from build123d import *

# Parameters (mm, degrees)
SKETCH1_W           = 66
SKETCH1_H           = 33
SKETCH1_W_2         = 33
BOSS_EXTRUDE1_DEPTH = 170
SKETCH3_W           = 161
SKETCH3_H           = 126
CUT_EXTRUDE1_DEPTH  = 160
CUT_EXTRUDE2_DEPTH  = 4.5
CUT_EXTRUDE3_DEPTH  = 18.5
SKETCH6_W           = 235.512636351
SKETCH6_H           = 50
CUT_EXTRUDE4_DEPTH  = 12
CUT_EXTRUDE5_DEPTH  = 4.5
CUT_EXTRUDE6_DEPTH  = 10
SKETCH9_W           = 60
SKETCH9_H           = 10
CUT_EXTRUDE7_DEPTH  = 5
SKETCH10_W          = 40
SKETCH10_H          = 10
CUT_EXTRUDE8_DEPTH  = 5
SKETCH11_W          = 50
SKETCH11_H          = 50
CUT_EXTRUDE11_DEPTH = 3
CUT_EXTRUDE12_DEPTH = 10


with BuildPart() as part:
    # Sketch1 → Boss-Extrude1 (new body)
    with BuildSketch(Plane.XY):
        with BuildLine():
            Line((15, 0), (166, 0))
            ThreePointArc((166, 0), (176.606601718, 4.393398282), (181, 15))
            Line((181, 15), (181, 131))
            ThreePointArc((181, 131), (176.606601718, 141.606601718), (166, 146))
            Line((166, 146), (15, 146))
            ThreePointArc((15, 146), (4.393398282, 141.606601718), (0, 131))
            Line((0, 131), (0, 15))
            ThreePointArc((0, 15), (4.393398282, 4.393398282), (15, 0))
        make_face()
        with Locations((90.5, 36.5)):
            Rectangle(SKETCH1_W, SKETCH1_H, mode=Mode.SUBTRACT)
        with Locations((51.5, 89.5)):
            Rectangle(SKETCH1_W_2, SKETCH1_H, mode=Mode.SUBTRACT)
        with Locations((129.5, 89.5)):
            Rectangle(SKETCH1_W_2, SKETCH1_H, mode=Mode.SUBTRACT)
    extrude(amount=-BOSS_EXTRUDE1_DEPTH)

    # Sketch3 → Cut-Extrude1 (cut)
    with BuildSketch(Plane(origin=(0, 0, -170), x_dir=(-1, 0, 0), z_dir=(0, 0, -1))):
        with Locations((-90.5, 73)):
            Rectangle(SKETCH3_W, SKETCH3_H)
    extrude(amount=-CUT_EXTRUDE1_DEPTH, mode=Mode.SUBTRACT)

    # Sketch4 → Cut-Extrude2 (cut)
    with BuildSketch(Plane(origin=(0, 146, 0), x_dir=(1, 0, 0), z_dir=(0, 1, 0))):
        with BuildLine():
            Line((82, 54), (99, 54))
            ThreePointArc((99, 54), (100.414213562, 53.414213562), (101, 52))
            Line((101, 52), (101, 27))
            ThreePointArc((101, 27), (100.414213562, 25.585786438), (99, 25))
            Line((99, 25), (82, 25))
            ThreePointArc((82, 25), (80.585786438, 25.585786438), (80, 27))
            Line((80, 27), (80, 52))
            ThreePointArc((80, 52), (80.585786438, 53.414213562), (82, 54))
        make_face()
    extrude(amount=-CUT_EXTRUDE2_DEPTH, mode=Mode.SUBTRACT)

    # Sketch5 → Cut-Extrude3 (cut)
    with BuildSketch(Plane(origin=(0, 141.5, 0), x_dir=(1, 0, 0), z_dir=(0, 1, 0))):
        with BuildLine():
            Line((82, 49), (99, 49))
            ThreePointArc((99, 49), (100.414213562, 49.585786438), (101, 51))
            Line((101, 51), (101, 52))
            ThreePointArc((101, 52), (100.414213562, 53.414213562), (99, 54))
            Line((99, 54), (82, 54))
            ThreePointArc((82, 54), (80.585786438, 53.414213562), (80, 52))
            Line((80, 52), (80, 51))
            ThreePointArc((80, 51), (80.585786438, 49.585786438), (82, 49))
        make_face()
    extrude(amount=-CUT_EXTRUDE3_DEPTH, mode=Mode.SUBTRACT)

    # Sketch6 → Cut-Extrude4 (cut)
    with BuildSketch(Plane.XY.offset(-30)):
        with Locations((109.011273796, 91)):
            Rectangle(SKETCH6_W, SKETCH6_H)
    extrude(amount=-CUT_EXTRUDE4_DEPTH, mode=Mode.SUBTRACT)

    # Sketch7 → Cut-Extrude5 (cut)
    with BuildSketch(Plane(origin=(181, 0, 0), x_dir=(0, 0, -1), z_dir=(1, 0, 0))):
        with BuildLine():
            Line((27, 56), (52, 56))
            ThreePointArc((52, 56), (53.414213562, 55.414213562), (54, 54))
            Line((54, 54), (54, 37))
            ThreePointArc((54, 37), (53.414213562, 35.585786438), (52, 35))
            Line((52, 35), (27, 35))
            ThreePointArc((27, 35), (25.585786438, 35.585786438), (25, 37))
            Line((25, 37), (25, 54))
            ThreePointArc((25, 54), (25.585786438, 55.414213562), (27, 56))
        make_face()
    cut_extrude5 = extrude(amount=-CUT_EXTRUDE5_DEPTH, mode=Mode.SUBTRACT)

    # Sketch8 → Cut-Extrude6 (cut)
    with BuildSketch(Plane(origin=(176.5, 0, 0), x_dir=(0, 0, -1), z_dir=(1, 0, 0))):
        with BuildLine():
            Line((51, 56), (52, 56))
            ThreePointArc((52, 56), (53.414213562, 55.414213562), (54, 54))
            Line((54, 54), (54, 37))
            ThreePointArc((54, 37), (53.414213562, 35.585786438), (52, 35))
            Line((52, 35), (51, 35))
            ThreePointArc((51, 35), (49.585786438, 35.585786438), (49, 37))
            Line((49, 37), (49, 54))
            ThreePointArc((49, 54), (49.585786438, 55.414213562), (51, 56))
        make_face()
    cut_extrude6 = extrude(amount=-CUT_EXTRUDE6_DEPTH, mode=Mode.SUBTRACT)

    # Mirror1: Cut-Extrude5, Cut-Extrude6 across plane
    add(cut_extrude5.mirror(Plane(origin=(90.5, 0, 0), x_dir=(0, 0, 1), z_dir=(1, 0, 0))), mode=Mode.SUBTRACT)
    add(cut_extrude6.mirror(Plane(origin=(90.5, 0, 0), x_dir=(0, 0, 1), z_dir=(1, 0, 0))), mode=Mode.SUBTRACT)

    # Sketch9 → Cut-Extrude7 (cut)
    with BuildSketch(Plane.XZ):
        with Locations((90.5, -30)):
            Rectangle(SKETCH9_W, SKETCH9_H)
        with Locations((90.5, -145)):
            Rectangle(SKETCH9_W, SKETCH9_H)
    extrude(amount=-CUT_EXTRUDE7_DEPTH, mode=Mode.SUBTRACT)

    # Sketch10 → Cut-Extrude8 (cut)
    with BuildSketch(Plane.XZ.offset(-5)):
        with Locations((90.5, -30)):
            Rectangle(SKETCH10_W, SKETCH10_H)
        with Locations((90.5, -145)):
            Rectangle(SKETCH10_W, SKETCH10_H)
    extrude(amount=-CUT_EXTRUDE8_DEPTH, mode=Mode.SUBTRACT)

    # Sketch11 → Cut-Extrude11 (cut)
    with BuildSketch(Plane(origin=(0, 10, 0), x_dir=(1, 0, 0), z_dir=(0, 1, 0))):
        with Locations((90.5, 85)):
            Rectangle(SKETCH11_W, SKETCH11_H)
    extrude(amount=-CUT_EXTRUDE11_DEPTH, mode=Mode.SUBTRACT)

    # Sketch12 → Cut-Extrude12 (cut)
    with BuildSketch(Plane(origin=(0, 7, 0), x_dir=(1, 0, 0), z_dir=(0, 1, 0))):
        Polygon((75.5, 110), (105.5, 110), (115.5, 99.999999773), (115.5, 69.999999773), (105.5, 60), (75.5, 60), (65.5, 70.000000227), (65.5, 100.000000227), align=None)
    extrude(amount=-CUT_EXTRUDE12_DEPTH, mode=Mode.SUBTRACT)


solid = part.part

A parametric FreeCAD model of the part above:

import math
import FreeCAD as App
import Part
import Sketcher

doc = App.newDocument("Part")
body = doc.addObject("PartDesign::Body", "Body")

sketch1 = body.newObject("Sketcher::SketchObject", "Sketch")
sketch1.AttachmentSupport = (doc.getObject("XY_Plane"), [""])
sketch1.MapMode = "FlatFace"
sketch1.addGeometry([
    Part.LineSegment(App.Vector(15, 0, 0), App.Vector(166, 0, 0)),
    Part.ArcOfCircle(Part.Circle(App.Vector(166, 15, 0), App.Vector(0, 0, 1), 15), math.radians(-90), math.radians(0)),
    Part.LineSegment(App.Vector(181, 15, 0), App.Vector(181, 131, 0)),
    Part.ArcOfCircle(Part.Circle(App.Vector(166, 131, 0), App.Vector(0, 0, 1), 15), math.radians(0), math.radians(90)),
    Part.LineSegment(App.Vector(166, 146, 0), App.Vector(15, 146, 0)),
    Part.ArcOfCircle(Part.Circle(App.Vector(15, 131, 0), App.Vector(0, 0, 1), 15), math.radians(90), math.radians(180)),
    Part.LineSegment(App.Vector(0, 131, 0), App.Vector(0, 15, 0)),
    Part.ArcOfCircle(Part.Circle(App.Vector(15, 15, 0), App.Vector(0, 0, 1), 15), math.radians(180), math.radians(270)),
    Part.LineSegment(App.Vector(124, 20, 0), App.Vector(58, 20, 0)),
    Part.LineSegment(App.Vector(58, 20, 0), App.Vector(58, 53, 0)),
    Part.LineSegment(App.Vector(58, 53, 0), App.Vector(124, 53, 0)),
    Part.LineSegment(App.Vector(124, 53, 0), App.Vector(124, 20, 0)),
    Part.LineSegment(App.Vector(68, 73, 0), App.Vector(35, 73, 0)),
    Part.LineSegment(App.Vector(35, 73, 0), App.Vector(35, 106, 0)),
    Part.LineSegment(App.Vector(35, 106, 0), App.Vector(68, 106, 0)),
    Part.LineSegment(App.Vector(68, 106, 0), App.Vector(68, 73, 0)),
    Part.LineSegment(App.Vector(146, 73, 0), App.Vector(113, 73, 0)),
    Part.LineSegment(App.Vector(113, 73, 0), App.Vector(113, 106, 0)),
    Part.LineSegment(App.Vector(113, 106, 0), App.Vector(146, 106, 0)),
    Part.LineSegment(App.Vector(146, 106, 0), App.Vector(146, 73, 0)),
], False)
sketch1.addConstraint([
    Sketcher.Constraint("Tangent", 0, 2, 1, 1),
    Sketcher.Constraint("Tangent", 1, 2, 2, 1),
    Sketcher.Constraint("Tangent", 2, 2, 3, 1),
    Sketcher.Constraint("Tangent", 3, 2, 4, 1),
    Sketcher.Constraint("Tangent", 4, 2, 5, 1),
    Sketcher.Constraint("Tangent", 5, 2, 6, 1),
    Sketcher.Constraint("Tangent", 6, 2, 7, 1),
    Sketcher.Constraint("Tangent", 7, 2, 0, 1),
    Sketcher.Constraint("Coincident", 8, 2, 9, 1),
    Sketcher.Constraint("Coincident", 9, 2, 10, 1),
    Sketcher.Constraint("Coincident", 10, 2, 11, 1),
    Sketcher.Constraint("Coincident", 11, 2, 8, 1),
    Sketcher.Constraint("Coincident", 12, 2, 13, 1),
    Sketcher.Constraint("Coincident", 13, 2, 14, 1),
    Sketcher.Constraint("Coincident", 14, 2, 15, 1),
    Sketcher.Constraint("Coincident", 15, 2, 12, 1),
    Sketcher.Constraint("Coincident", 16, 2, 17, 1),
    Sketcher.Constraint("Coincident", 17, 2, 18, 1),
    Sketcher.Constraint("Coincident", 18, 2, 19, 1),
    Sketcher.Constraint("Coincident", 19, 2, 16, 1),
    Sketcher.Constraint("Horizontal", 0),
    Sketcher.Constraint("Vertical", 2),
    Sketcher.Constraint("Horizontal", 4),
    Sketcher.Constraint("Vertical", 6),
    Sketcher.Constraint("Horizontal", 8),
    Sketcher.Constraint("Vertical", 9),
    Sketcher.Constraint("Horizontal", 10),
    Sketcher.Constraint("Vertical", 11),
    Sketcher.Constraint("Horizontal", 12),
    Sketcher.Constraint("Vertical", 13),
    Sketcher.Constraint("Horizontal", 14),
    Sketcher.Constraint("Vertical", 15),
    Sketcher.Constraint("Horizontal", 16),
    Sketcher.Constraint("Vertical", 17),
    Sketcher.Constraint("Horizontal", 18),
    Sketcher.Constraint("Vertical", 19),
    Sketcher.Constraint("Equal", 1, 3),
    Sketcher.Constraint("Equal", 3, 5),
    Sketcher.Constraint("Equal", 5, 7),
    Sketcher.Constraint("PointOnObject", 0, 2, -1),
    Sketcher.Constraint("PointOnObject", 5, 2, -2),
    Sketcher.Constraint("Horizontal", 15, 2, 16, 2),
    Sketcher.Constraint("Horizontal", 14, 2, 17, 2),
    Sketcher.Constraint("Equal", 14, 16),
    Sketcher.Constraint("Equal", 18, 9),
    Sketcher.Constraint("Equal", 11, 13),
    Sketcher.Constraint("Radius", 1, 15.0),
    Sketcher.Constraint("DistanceX", 0, 1, 0, 2, 151.0),
    Sketcher.Constraint("DistanceX", 8, 2, 8, 1, 66.0),
    Sketcher.Constraint("DistanceX", 12, 2, 12, 1, 33.0),
    Sketcher.Constraint("DistanceY", 2, 1, 2, 2, 116.0),
    Sketcher.Constraint("DistanceY", -1, 1, 8, 2, 20.0),
    Sketcher.Constraint("DistanceX", -1, 1, 12, 2, 35.0),
    Sketcher.Constraint("DistanceY", -1, 1, 12, 2, 73.0),
    Sketcher.Constraint("DistanceX", -1, 1, 16, 2, 113.0),
    Sketcher.Constraint("DistanceX", -1, 1, 8, 2, 57.5),
])
pad1 = body.newObject("PartDesign::Pad", "Pad")
pad1.Profile = sketch1
pad1.Length = 170
pad1.Reversed = True

sketch2 = body.newObject("Sketcher::SketchObject", "Sketch001")
sketch2.AttachmentSupport = (doc.getObject("XY_Plane"), [""])
sketch2.MapMode = "FlatFace"
sketch2.AttachmentOffset = App.Placement(App.Vector(0, 0, -170), App.Rotation())
sketch2.addGeometry([
    Part.LineSegment(App.Vector(171, 136, 0), App.Vector(171, 10, 0)),
    Part.LineSegment(App.Vector(171, 10, 0), App.Vector(10, 10, 0)),
    Part.LineSegment(App.Vector(10, 10, 0), App.Vector(10, 136, 0)),
    Part.LineSegment(App.Vector(10, 136, 0), App.Vector(171, 136, 0)),
], False)
sketch2.addConstraint([
    Sketcher.Constraint("Coincident", 0, 2, 1, 1),
    Sketcher.Constraint("Coincident", 1, 2, 2, 1),
    Sketcher.Constraint("Coincident", 2, 2, 3, 1),
    Sketcher.Constraint("Coincident", 3, 2, 0, 1),
    Sketcher.Constraint("Vertical", 0),
    Sketcher.Constraint("Horizontal", 1),
    Sketcher.Constraint("Vertical", 2),
    Sketcher.Constraint("Horizontal", 3),
    Sketcher.Constraint("DistanceX", 1, 2, 1, 1, 161.0),
    Sketcher.Constraint("DistanceY", 0, 2, 0, 1, 126.0),
    Sketcher.Constraint("DistanceX", -1, 1, 0, 2, 171.0),
    Sketcher.Constraint("DistanceY", -1, 1, 0, 2, 10.0),
])
pocket1 = body.newObject("PartDesign::Pocket", "Pocket")
pocket1.Profile = sketch2
pocket1.Length = 160
pocket1.Reversed = True

sketch3 = body.newObject("Sketcher::SketchObject", "Sketch002")
sketch3.AttachmentSupport = (doc.getObject("XZ_Plane"), [""])
sketch3.MapMode = "FlatFace"
sketch3.AttachmentOffset = App.Placement(App.Vector(0, 0, -146), App.Rotation())
sketch3.addGeometry([
    Part.LineSegment(App.Vector(99, -54, 0), App.Vector(82, -54, 0)),
    Part.ArcOfCircle(Part.Circle(App.Vector(82, -52, 0), App.Vector(0, 0, 1), 2), math.radians(-180), math.radians(-90)),
    Part.LineSegment(App.Vector(80, -52, 0), App.Vector(80, -27, 0)),
    Part.ArcOfCircle(Part.Circle(App.Vector(82, -27, 0), App.Vector(0, 0, 1), 2), math.radians(90), math.radians(180)),
    Part.LineSegment(App.Vector(82, -25, 0), App.Vector(99, -25, 0)),
    Part.ArcOfCircle(Part.Circle(App.Vector(99, -27, 0), App.Vector(0, 0, 1), 2), math.radians(0), math.radians(90)),
    Part.LineSegment(App.Vector(101, -27, 0), App.Vector(101, -52, 0)),
    Part.ArcOfCircle(Part.Circle(App.Vector(99, -52, 0), App.Vector(0, 0, 1), 2), math.radians(-90), math.radians(0)),
], False)
sketch3.addConstraint([
    Sketcher.Constraint("Tangent", 0, 2, 1, 2),
    Sketcher.Constraint("Tangent", 1, 1, 2, 1),
    Sketcher.Constraint("Tangent", 2, 2, 3, 2),
    Sketcher.Constraint("Tangent", 3, 1, 4, 1),
    Sketcher.Constraint("Tangent", 4, 2, 5, 2),
    Sketcher.Constraint("Tangent", 5, 1, 6, 1),
    Sketcher.Constraint("Tangent", 6, 2, 7, 2),
    Sketcher.Constraint("Tangent", 7, 1, 0, 1),
    Sketcher.Constraint("Horizontal", 0),
    Sketcher.Constraint("Vertical", 2),
    Sketcher.Constraint("Horizontal", 4),
    Sketcher.Constraint("Vertical", 6),
    Sketcher.Constraint("Equal", 1, 3),
    Sketcher.Constraint("Equal", 3, 5),
    Sketcher.Constraint("Equal", 5, 7),
    Sketcher.Constraint("Radius", 1, 2.0),
    Sketcher.Constraint("DistanceX", 0, 2, 0, 1, 17.0),
    Sketcher.Constraint("DistanceY", 2, 1, 2, 2, 25.0),
    Sketcher.Constraint("DistanceX", -1, 1, 1, 3, 82.0),
    Sketcher.Constraint("DistanceY", 1, 3, -1, 1, 52.0),
])
pocket2 = body.newObject("PartDesign::Pocket", "Pocket001")
pocket2.Profile = sketch3
pocket2.Length = 4.5
pocket2.Reversed = True

sketch4 = body.newObject("Sketcher::SketchObject", "Sketch003")
sketch4.AttachmentSupport = (doc.getObject("XZ_Plane"), [""])
sketch4.MapMode = "FlatFace"
sketch4.AttachmentOffset = App.Placement(App.Vector(0, 0, -141.5), App.Rotation())
sketch4.addGeometry([
    Part.LineSegment(App.Vector(82, -49, 0), App.Vector(99, -49, 0)),
    Part.ArcOfCircle(Part.Circle(App.Vector(99, -51, 0), App.Vector(0, 0, 1), 2), math.radians(0), math.radians(90)),
    Part.LineSegment(App.Vector(101, -51, 0), App.Vector(101, -52, 0)),
    Part.ArcOfCircle(Part.Circle(App.Vector(99, -52, 0), App.Vector(0, 0, 1), 2), math.radians(-90), math.radians(0)),
    Part.LineSegment(App.Vector(99, -54, 0), App.Vector(82, -54, 0)),
    Part.ArcOfCircle(Part.Circle(App.Vector(82, -52, 0), App.Vector(0, 0, 1), 2), math.radians(-180), math.radians(-90)),
    Part.LineSegment(App.Vector(80, -52, 0), App.Vector(80, -51, 0)),
    Part.ArcOfCircle(Part.Circle(App.Vector(82, -51, 0), App.Vector(0, 0, 1), 2), math.radians(90), math.radians(180)),
], False)
sketch4.addConstraint([
    Sketcher.Constraint("Tangent", 0, 2, 1, 2),
    Sketcher.Constraint("Tangent", 1, 1, 2, 1),
    Sketcher.Constraint("Tangent", 2, 2, 3, 2),
    Sketcher.Constraint("Tangent", 3, 1, 4, 1),
    Sketcher.Constraint("Tangent", 4, 2, 5, 2),
    Sketcher.Constraint("Tangent", 5, 1, 6, 1),
    Sketcher.Constraint("Tangent", 6, 2, 7, 2),
    Sketcher.Constraint("Tangent", 7, 1, 0, 1),
    Sketcher.Constraint("Horizontal", 0),
    Sketcher.Constraint("Vertical", 2),
    Sketcher.Constraint("Horizontal", 4),
    Sketcher.Constraint("Vertical", 6),
    Sketcher.Constraint("Equal", 1, 3),
    Sketcher.Constraint("Equal", 3, 5),
    Sketcher.Constraint("Equal", 5, 7),
    Sketcher.Constraint("Radius", 1, 2.0),
    Sketcher.Constraint("DistanceX", 0, 1, 0, 2, 17.0),
    Sketcher.Constraint("DistanceY", 2, 2, 2, 1, 1.0),
    Sketcher.Constraint("DistanceX", -1, 1, 1, 3, 99.0),
    Sketcher.Constraint("DistanceY", 1, 3, -1, 1, 51.0),
])
pocket3 = body.newObject("PartDesign::Pocket", "Pocket002")
pocket3.Profile = sketch4
pocket3.Length = 18.5
pocket3.Reversed = True

sketch5 = body.newObject("Sketcher::SketchObject", "Sketch004")
sketch5.AttachmentSupport = (doc.getObject("XY_Plane"), [""])
sketch5.MapMode = "FlatFace"
sketch5.AttachmentOffset = App.Placement(App.Vector(0, 0, -30), App.Rotation())
sketch5.addGeometry([
    Part.LineSegment(App.Vector(-9, 116, 0), App.Vector(-9, 66, 0)),
    Part.LineSegment(App.Vector(-9, 66, 0), App.Vector(227, 66, 0)),
    Part.LineSegment(App.Vector(227, 66, 0), App.Vector(227, 116, 0)),
    Part.LineSegment(App.Vector(227, 116, 0), App.Vector(-9, 116, 0)),
], False)
sketch5.addConstraint([
    Sketcher.Constraint("Coincident", 0, 2, 1, 1),
    Sketcher.Constraint("Coincident", 1, 2, 2, 1),
    Sketcher.Constraint("Coincident", 2, 2, 3, 1),
    Sketcher.Constraint("Coincident", 3, 2, 0, 1),
    Sketcher.Constraint("Vertical", 0),
    Sketcher.Constraint("Horizontal", 1),
    Sketcher.Constraint("Vertical", 2),
    Sketcher.Constraint("Horizontal", 3),
    Sketcher.Constraint("DistanceY", 0, 2, 0, 1, 50.0),
    Sketcher.Constraint("DistanceY", -1, 1, 0, 2, 66.0),
    Sketcher.Constraint("DistanceX", 1, 1, 1, 2, 235.512636),
    Sketcher.Constraint("DistanceX", -1, 1, 1, 2, 226.767592),
])
pocket4 = body.newObject("PartDesign::Pocket", "Pocket003")
pocket4.Profile = sketch5
pocket4.Length = 12

sketch6 = body.newObject("Sketcher::SketchObject", "Sketch005")
sketch6.AttachmentSupport = (doc.getObject("YZ_Plane"), [""])
sketch6.MapMode = "FlatFace"
sketch6.AttachmentOffset = App.Placement(App.Vector(0, 0, 181), App.Rotation())
sketch6.addGeometry([
    Part.LineSegment(App.Vector(56, -52, 0), App.Vector(56, -27, 0)),
    Part.ArcOfCircle(Part.Circle(App.Vector(54, -27, 0), App.Vector(0, 0, 1), 2), math.radians(0), math.radians(90)),
    Part.LineSegment(App.Vector(54, -25, 0), App.Vector(37, -25, 0)),
    Part.ArcOfCircle(Part.Circle(App.Vector(37, -27, 0), App.Vector(0, 0, 1), 2), math.radians(90), math.radians(180)),
    Part.LineSegment(App.Vector(35, -27, 0), App.Vector(35, -52, 0)),
    Part.ArcOfCircle(Part.Circle(App.Vector(37, -52, 0), App.Vector(0, 0, 1), 2), math.radians(-180), math.radians(-90)),
    Part.LineSegment(App.Vector(37, -54, 0), App.Vector(54, -54, 0)),
    Part.ArcOfCircle(Part.Circle(App.Vector(54, -52, 0), App.Vector(0, 0, 1), 2), math.radians(-90), math.radians(0)),
], False)
sketch6.addConstraint([
    Sketcher.Constraint("Tangent", 0, 2, 1, 1),
    Sketcher.Constraint("Tangent", 1, 2, 2, 1),
    Sketcher.Constraint("Tangent", 2, 2, 3, 1),
    Sketcher.Constraint("Tangent", 3, 2, 4, 1),
    Sketcher.Constraint("Tangent", 4, 2, 5, 1),
    Sketcher.Constraint("Tangent", 5, 2, 6, 1),
    Sketcher.Constraint("Tangent", 6, 2, 7, 1),
    Sketcher.Constraint("Tangent", 7, 2, 0, 1),
    Sketcher.Constraint("Vertical", 0),
    Sketcher.Constraint("Horizontal", 2),
    Sketcher.Constraint("Vertical", 4),
    Sketcher.Constraint("Horizontal", 6),
    Sketcher.Constraint("Equal", 1, 3),
    Sketcher.Constraint("Equal", 3, 5),
    Sketcher.Constraint("Equal", 5, 7),
    Sketcher.Constraint("Radius", 1, 2.0),
    Sketcher.Constraint("DistanceX", 2, 2, 2, 1, 17.0),
    Sketcher.Constraint("DistanceY", 0, 1, 0, 2, 25.0),
    Sketcher.Constraint("DistanceX", -1, 1, 1, 3, 54.0),
    Sketcher.Constraint("DistanceY", 1, 3, -1, 1, 27.0),
])
pocket5 = body.newObject("PartDesign::Pocket", "Pocket004")
pocket5.Profile = sketch6
pocket5.Length = 4.5

sketch7 = body.newObject("Sketcher::SketchObject", "Sketch006")
sketch7.AttachmentSupport = (doc.getObject("YZ_Plane"), [""])
sketch7.MapMode = "FlatFace"
sketch7.AttachmentOffset = App.Placement(App.Vector(0, 0, 176.5), App.Rotation())
sketch7.addGeometry([
    Part.LineSegment(App.Vector(56, -52, 0), App.Vector(56, -51, 0)),
    Part.ArcOfCircle(Part.Circle(App.Vector(54, -51, 0), App.Vector(0, 0, 1), 2), math.radians(0), math.radians(90)),
    Part.LineSegment(App.Vector(54, -49, 0), App.Vector(37, -49, 0)),
    Part.ArcOfCircle(Part.Circle(App.Vector(37, -51, 0), App.Vector(0, 0, 1), 2), math.radians(90), math.radians(180)),
    Part.LineSegment(App.Vector(35, -51, 0), App.Vector(35, -52, 0)),
    Part.ArcOfCircle(Part.Circle(App.Vector(37, -52, 0), App.Vector(0, 0, 1), 2), math.radians(-180), math.radians(-90)),
    Part.LineSegment(App.Vector(37, -54, 0), App.Vector(54, -54, 0)),
    Part.ArcOfCircle(Part.Circle(App.Vector(54, -52, 0), App.Vector(0, 0, 1), 2), math.radians(-90), math.radians(0)),
], False)
sketch7.addConstraint([
    Sketcher.Constraint("Tangent", 0, 2, 1, 1),
    Sketcher.Constraint("Tangent", 1, 2, 2, 1),
    Sketcher.Constraint("Tangent", 2, 2, 3, 1),
    Sketcher.Constraint("Tangent", 3, 2, 4, 1),
    Sketcher.Constraint("Tangent", 4, 2, 5, 1),
    Sketcher.Constraint("Tangent", 5, 2, 6, 1),
    Sketcher.Constraint("Tangent", 6, 2, 7, 1),
    Sketcher.Constraint("Tangent", 7, 2, 0, 1),
    Sketcher.Constraint("Vertical", 0),
    Sketcher.Constraint("Horizontal", 2),
    Sketcher.Constraint("Vertical", 4),
    Sketcher.Constraint("Horizontal", 6),
    Sketcher.Constraint("Equal", 1, 3),
    Sketcher.Constraint("Equal", 3, 5),
    Sketcher.Constraint("Equal", 5, 7),
    Sketcher.Constraint("Radius", 1, 2.0),
    Sketcher.Constraint("DistanceX", 2, 2, 2, 1, 17.0),
    Sketcher.Constraint("DistanceY", 0, 1, 0, 2, 1.0),
    Sketcher.Constraint("DistanceX", -1, 1, 1, 3, 54.0),
    Sketcher.Constraint("DistanceY", 1, 3, -1, 1, 51.0),
])
pocket6 = body.newObject("PartDesign::Pocket", "Pocket005")
pocket6.Profile = sketch7
pocket6.Length = 10
doc.recompute()

datumplane = body.newObject("PartDesign::Plane", "DatumPlane")
datumplane.AttachmentSupport = (doc.getObject("YZ_Plane"), [""])
datumplane.MapMode = "FlatFace"
datumplane.AttachmentOffset = App.Placement(App.Vector(0, 0, 90.5), App.Rotation())
mirrored = body.newObject("PartDesign::Mirrored", "Mirrored")
mirrored.Originals = [pocket5, pocket6]
mirrored.MirrorPlane = (datumplane, [""])
body.Tip = mirrored

sketch8 = body.newObject("Sketcher::SketchObject", "Sketch007")
sketch8.AttachmentSupport = (doc.getObject("XZ_Plane"), [""])
sketch8.MapMode = "FlatFace"
sketch8.addGeometry([
    Part.LineSegment(App.Vector(60, -25, 0), App.Vector(60, -35, 0)),
    Part.LineSegment(App.Vector(60, -35, 0), App.Vector(120, -35, 0)),
    Part.LineSegment(App.Vector(120, -35, 0), App.Vector(120, -25, 0)),
    Part.LineSegment(App.Vector(120, -25, 0), App.Vector(60, -25, 0)),
    Part.LineSegment(App.Vector(60, -140, 0), App.Vector(60, -150, 0)),
    Part.LineSegment(App.Vector(60, -150, 0), App.Vector(120, -150, 0)),
    Part.LineSegment(App.Vector(120, -150, 0), App.Vector(120, -140, 0)),
    Part.LineSegment(App.Vector(120, -140, 0), App.Vector(60, -140, 0)),
], False)
sketch8.addConstraint([
    Sketcher.Constraint("Coincident", 0, 2, 1, 1),
    Sketcher.Constraint("Coincident", 1, 2, 2, 1),
    Sketcher.Constraint("Coincident", 2, 2, 3, 1),
    Sketcher.Constraint("Coincident", 3, 2, 0, 1),
    Sketcher.Constraint("Coincident", 4, 2, 5, 1),
    Sketcher.Constraint("Coincident", 5, 2, 6, 1),
    Sketcher.Constraint("Coincident", 6, 2, 7, 1),
    Sketcher.Constraint("Coincident", 7, 2, 4, 1),
    Sketcher.Constraint("Vertical", 0),
    Sketcher.Constraint("Horizontal", 1),
    Sketcher.Constraint("Vertical", 2),
    Sketcher.Constraint("Horizontal", 3),
    Sketcher.Constraint("Vertical", 4),
    Sketcher.Constraint("Horizontal", 5),
    Sketcher.Constraint("Vertical", 6),
    Sketcher.Constraint("Horizontal", 7),
    Sketcher.Constraint("Vertical", 3, 2, 4, 2),
    Sketcher.Constraint("Vertical", 2, 2, 5, 2),
    Sketcher.Constraint("Equal", 2, 4),
    Sketcher.Constraint("DistanceX", 1, 1, 1, 2, 60.0),
    Sketcher.Constraint("DistanceY", 0, 2, 0, 1, 10.0),
    Sketcher.Constraint("DistanceY", 0, 2, -1, 1, 35.0),
    Sketcher.Constraint("DistanceY", 4, 2, -1, 1, 150.0),
    Sketcher.Constraint("DistanceX", -1, 1, 0, 2, 60.5),
])
pocket7 = body.newObject("PartDesign::Pocket", "Pocket006")
pocket7.Profile = sketch8
pocket7.Length = 5

sketch9 = body.newObject("Sketcher::SketchObject", "Sketch008")
sketch9.AttachmentSupport = (doc.getObject("XZ_Plane"), [""])
sketch9.MapMode = "FlatFace"
sketch9.AttachmentOffset = App.Placement(App.Vector(0, 0, -5), App.Rotation())
sketch9.addGeometry([
    Part.LineSegment(App.Vector(70, -25, 0), App.Vector(70, -35, 0)),
    Part.LineSegment(App.Vector(70, -35, 0), App.Vector(110, -35, 0)),
    Part.LineSegment(App.Vector(110, -35, 0), App.Vector(110, -25, 0)),
    Part.LineSegment(App.Vector(110, -25, 0), App.Vector(70, -25, 0)),
    Part.LineSegment(App.Vector(70, -140, 0), App.Vector(70, -150, 0)),
    Part.LineSegment(App.Vector(70, -150, 0), App.Vector(110, -150, 0)),
    Part.LineSegment(App.Vector(110, -150, 0), App.Vector(110, -140, 0)),
    Part.LineSegment(App.Vector(110, -140, 0), App.Vector(70, -140, 0)),
], False)
sketch9.addConstraint([
    Sketcher.Constraint("Coincident", 0, 2, 1, 1),
    Sketcher.Constraint("Coincident", 1, 2, 2, 1),
    Sketcher.Constraint("Coincident", 2, 2, 3, 1),
    Sketcher.Constraint("Coincident", 3, 2, 0, 1),
    Sketcher.Constraint("Coincident", 4, 2, 5, 1),
    Sketcher.Constraint("Coincident", 5, 2, 6, 1),
    Sketcher.Constraint("Coincident", 6, 2, 7, 1),
    Sketcher.Constraint("Coincident", 7, 2, 4, 1),
    Sketcher.Constraint("Vertical", 0),
    Sketcher.Constraint("Horizontal", 1),
    Sketcher.Constraint("Vertical", 2),
    Sketcher.Constraint("Horizontal", 3),
    Sketcher.Constraint("Vertical", 4),
    Sketcher.Constraint("Horizontal", 5),
    Sketcher.Constraint("Vertical", 6),
    Sketcher.Constraint("Horizontal", 7),
    Sketcher.Constraint("Vertical", 3, 2, 4, 2),
    Sketcher.Constraint("Vertical", 2, 2, 5, 2),
    Sketcher.Constraint("Equal", 2, 4),
    Sketcher.Constraint("DistanceX", 1, 1, 1, 2, 40.0),
    Sketcher.Constraint("DistanceY", 0, 2, 0, 1, 10.0),
    Sketcher.Constraint("DistanceY", 0, 2, -1, 1, 35.0),
    Sketcher.Constraint("DistanceY", 4, 2, -1, 1, 150.0),
    Sketcher.Constraint("DistanceX", -1, 1, 0, 2, 70.5),
])
pocket8 = body.newObject("PartDesign::Pocket", "Pocket007")
pocket8.Profile = sketch9
pocket8.Length = 5

sketch10 = body.newObject("Sketcher::SketchObject", "Sketch009")
sketch10.AttachmentSupport = (doc.getObject("XZ_Plane"), [""])
sketch10.MapMode = "FlatFace"
sketch10.AttachmentOffset = App.Placement(App.Vector(0, 0, -10), App.Rotation())
sketch10.addGeometry([
    Part.LineSegment(App.Vector(66, -110, 0), App.Vector(66, -60, 0)),
    Part.LineSegment(App.Vector(66, -60, 0), App.Vector(116, -60, 0)),
    Part.LineSegment(App.Vector(116, -60, 0), App.Vector(116, -110, 0)),
    Part.LineSegment(App.Vector(116, -110, 0), App.Vector(66, -110, 0)),
], False)
sketch10.addConstraint([
    Sketcher.Constraint("Coincident", 0, 2, 1, 1),
    Sketcher.Constraint("Coincident", 1, 2, 2, 1),
    Sketcher.Constraint("Coincident", 2, 2, 3, 1),
    Sketcher.Constraint("Coincident", 3, 2, 0, 1),
    Sketcher.Constraint("Vertical", 0),
    Sketcher.Constraint("Horizontal", 1),
    Sketcher.Constraint("Vertical", 2),
    Sketcher.Constraint("Horizontal", 3),
    Sketcher.Constraint("Equal", 3, 0),
    Sketcher.Constraint("DistanceX", 1, 1, 1, 2, 50.0),
    Sketcher.Constraint("DistanceY", 0, 2, -1, 1, 60.0),
    Sketcher.Constraint("DistanceX", -1, 1, 0, 2, 65.5),
])
pocket9 = body.newObject("PartDesign::Pocket", "Pocket008")
pocket9.Profile = sketch10
pocket9.Length = 3
pocket9.Reversed = True

sketch11 = body.newObject("Sketcher::SketchObject", "Sketch010")
sketch11.AttachmentSupport = (doc.getObject("XZ_Plane"), [""])
sketch11.MapMode = "FlatFace"
sketch11.AttachmentOffset = App.Placement(App.Vector(0, 0, -7), App.Rotation())
sketch11.addGeometry([
    Part.LineSegment(App.Vector(106, -110, 0), App.Vector(76, -110, 0)),
    Part.LineSegment(App.Vector(76, -110, 0), App.Vector(66, -100, 0)),
    Part.LineSegment(App.Vector(66, -100, 0), App.Vector(66, -70, 0)),
    Part.LineSegment(App.Vector(66, -70, 0), App.Vector(76, -60, 0)),
    Part.LineSegment(App.Vector(76, -60, 0), App.Vector(106, -60, 0)),
    Part.LineSegment(App.Vector(106, -60, 0), App.Vector(116, -70, 0)),
    Part.LineSegment(App.Vector(116, -70, 0), App.Vector(116, -100, 0)),
    Part.LineSegment(App.Vector(116, -100, 0), App.Vector(106, -110, 0)),
], False)
sketch11.addConstraint([
    Sketcher.Constraint("Coincident", 0, 2, 1, 1),
    Sketcher.Constraint("Coincident", 1, 2, 2, 1),
    Sketcher.Constraint("Coincident", 2, 2, 3, 1),
    Sketcher.Constraint("Coincident", 3, 2, 4, 1),
    Sketcher.Constraint("Coincident", 4, 2, 5, 1),
    Sketcher.Constraint("Coincident", 5, 2, 6, 1),
    Sketcher.Constraint("Coincident", 6, 2, 7, 1),
    Sketcher.Constraint("Coincident", 7, 2, 0, 1),
    Sketcher.Constraint("Horizontal", 0),
    Sketcher.Constraint("Vertical", 2),
    Sketcher.Constraint("Horizontal", 4),
    Sketcher.Constraint("Vertical", 6),
    Sketcher.Constraint("Perpendicular", 1, 3),
    Sketcher.Constraint("Perpendicular", 3, 5),
    Sketcher.Constraint("Perpendicular", 5, 7),
    Sketcher.Constraint("Horizontal", 2, 2, 5, 2),
    Sketcher.Constraint("Horizontal", 1, 2, 6, 2),
    Sketcher.Constraint("Vertical", 0, 2, 3, 2),
    Sketcher.Constraint("Vertical", 4, 2, 7, 2),
    Sketcher.Constraint("Equal", 4, 2),
    Sketcher.Constraint("DistanceX", 0, 2, 0, 1, 30.0),
    Sketcher.Constraint("DistanceY", 0, 2, -1, 1, 110.0),
    Sketcher.Constraint("DistanceY", 1, 2, -1, 1, 100.0),
    Sketcher.Constraint("DistanceX", -1, 1, 0, 2, 75.5),
])
pocket10 = body.newObject("PartDesign::Pocket", "Pocket009")
pocket10.Profile = sketch11
pocket10.Length = 10
pocket10.Reversed = True

doc.recompute()
